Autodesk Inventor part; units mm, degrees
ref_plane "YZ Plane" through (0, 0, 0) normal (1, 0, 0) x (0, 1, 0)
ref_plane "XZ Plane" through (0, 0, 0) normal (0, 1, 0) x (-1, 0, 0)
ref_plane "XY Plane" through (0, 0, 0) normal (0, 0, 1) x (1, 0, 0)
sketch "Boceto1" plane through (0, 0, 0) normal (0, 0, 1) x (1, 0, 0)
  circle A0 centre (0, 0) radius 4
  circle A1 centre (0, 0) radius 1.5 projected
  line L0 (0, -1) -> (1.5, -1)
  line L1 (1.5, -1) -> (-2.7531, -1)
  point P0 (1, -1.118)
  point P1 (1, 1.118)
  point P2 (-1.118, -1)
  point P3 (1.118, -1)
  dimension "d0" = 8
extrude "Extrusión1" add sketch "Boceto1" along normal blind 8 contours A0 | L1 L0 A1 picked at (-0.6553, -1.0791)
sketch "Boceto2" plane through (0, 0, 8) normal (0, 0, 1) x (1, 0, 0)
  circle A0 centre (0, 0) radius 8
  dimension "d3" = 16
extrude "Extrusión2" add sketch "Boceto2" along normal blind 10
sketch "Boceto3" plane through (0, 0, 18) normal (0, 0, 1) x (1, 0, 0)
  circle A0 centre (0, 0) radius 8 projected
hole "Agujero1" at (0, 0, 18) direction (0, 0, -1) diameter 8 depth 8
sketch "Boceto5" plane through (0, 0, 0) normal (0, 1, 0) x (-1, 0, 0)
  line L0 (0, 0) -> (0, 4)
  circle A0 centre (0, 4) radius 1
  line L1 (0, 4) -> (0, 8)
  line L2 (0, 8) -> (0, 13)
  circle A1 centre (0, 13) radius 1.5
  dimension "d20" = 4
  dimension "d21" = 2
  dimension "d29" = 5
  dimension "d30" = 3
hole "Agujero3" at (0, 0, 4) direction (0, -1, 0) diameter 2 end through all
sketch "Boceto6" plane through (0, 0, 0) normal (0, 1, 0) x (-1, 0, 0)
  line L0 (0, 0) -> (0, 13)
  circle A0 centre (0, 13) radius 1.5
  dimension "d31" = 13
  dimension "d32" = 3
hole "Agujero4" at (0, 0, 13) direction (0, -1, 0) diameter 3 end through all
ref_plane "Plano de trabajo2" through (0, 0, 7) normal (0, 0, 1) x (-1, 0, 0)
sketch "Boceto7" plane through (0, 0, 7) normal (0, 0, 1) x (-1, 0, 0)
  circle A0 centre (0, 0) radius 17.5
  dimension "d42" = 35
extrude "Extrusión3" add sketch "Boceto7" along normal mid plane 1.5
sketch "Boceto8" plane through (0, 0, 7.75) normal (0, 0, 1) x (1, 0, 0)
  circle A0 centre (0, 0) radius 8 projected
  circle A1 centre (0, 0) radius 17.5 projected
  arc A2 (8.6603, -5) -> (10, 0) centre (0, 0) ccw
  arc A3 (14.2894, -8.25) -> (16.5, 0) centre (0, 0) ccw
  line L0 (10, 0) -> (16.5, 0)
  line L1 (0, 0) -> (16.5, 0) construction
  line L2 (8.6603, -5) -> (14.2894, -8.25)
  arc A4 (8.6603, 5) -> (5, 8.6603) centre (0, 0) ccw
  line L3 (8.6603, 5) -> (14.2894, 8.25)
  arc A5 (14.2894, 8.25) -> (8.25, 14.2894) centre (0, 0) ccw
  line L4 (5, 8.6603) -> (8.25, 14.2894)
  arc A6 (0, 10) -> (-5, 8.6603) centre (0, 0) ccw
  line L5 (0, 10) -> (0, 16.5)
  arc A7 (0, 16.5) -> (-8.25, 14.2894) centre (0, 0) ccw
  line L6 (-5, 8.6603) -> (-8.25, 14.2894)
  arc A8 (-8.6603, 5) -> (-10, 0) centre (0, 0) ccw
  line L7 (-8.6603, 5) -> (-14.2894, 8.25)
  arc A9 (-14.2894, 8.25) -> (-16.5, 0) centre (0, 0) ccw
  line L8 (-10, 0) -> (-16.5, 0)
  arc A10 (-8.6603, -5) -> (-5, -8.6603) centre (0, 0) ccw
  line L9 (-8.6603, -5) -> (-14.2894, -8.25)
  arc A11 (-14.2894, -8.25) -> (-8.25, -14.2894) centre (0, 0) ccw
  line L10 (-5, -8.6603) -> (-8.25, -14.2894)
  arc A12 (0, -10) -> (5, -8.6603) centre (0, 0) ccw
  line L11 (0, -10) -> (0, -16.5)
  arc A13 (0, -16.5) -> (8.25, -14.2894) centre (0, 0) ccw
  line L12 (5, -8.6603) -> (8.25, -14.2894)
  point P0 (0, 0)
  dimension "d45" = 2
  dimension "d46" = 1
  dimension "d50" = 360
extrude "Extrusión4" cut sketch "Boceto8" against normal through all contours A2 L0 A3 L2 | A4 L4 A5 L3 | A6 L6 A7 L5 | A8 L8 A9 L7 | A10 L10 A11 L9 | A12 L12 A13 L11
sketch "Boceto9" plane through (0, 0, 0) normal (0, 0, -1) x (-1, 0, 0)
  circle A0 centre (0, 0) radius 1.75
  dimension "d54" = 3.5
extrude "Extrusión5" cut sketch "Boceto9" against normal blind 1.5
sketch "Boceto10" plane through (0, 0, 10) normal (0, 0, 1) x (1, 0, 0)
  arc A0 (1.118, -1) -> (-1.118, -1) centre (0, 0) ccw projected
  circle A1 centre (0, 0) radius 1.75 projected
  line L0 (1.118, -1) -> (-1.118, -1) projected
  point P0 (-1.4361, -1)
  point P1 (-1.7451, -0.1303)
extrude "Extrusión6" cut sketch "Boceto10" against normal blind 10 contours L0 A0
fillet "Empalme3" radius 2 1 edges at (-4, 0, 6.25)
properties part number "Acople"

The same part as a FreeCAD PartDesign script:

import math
import FreeCAD as App
import Part
import Sketcher

V = App.Vector
Q = App.Units.Quantity


def edges_at(feature, points):
    """Names of the edges that pass closest to the given points."""
    edges = feature.Shape.Edges
    near = lambda p: min(range(len(edges)), key=lambda i: edges[i].distToShape(Part.Vertex(*p))[0])
    return sorted({f"Edge{near(p) + 1}" for p in points})

doc = App.newDocument("Part")
body = doc.addObject("PartDesign::Body", "Body")

# Sketch on XY plane
sketch1 = body.newObject("Sketcher::SketchObject", "Sketch")
sketch1.AttachmentSupport = (doc.getObject("XY_Plane"), [""])
sketch1.MapMode = "FlatFace"
sketch1.addGeometry([
    Part.Circle(V(0, 0, 0), V(0, 0, 1), 4),
    Part.ArcOfCircle(Part.Circle(V(0, 0, 0), V(0, 0, 1), 1.5), math.radians(-42), math.radians(222)),
    Part.LineSegment(V(1.1, -1, 0), V(-1.1, -1, 0)),
], False)
sketch1.addConstraint([
    Sketcher.Constraint("Coincident", 1, 1, 2, 1),
    Sketcher.Constraint("Coincident", 2, 2, 1, 2),
    Sketcher.Constraint("Horizontal", 2),
    Sketcher.Constraint("Coincident", 0, 3, -1, 1),
    Sketcher.Constraint("Coincident", 1, 3, -1, 1),
    Sketcher.Constraint("Diameter", 0, Q("8 mm")),
    Sketcher.Constraint("Radius", 1, Q("1.5 mm")),
    Sketcher.Constraint("DistanceY", 1, 1, -1, 1, Q("1 mm")),
])
pad1 = body.newObject("PartDesign::Pad", "Pad")
pad1.Profile = sketch1
pad1.Length = 8

# Sketch on XY plane
sketch2 = body.newObject("Sketcher::SketchObject", "Sketch001")
sketch2.AttachmentSupport = (doc.getObject("XY_Plane"), [""])
sketch2.MapMode = "FlatFace"
sketch2.AttachmentOffset = App.Placement(V(0, 0, 8), App.Rotation())
sketch2.addGeometry(Part.Circle(V(0, 0, 0), V(0, 0, 1), 8), False)
sketch2.addConstraint([
    Sketcher.Constraint("Coincident", 0, 3, -1, 1),
    Sketcher.Constraint("Diameter", 0, Q("16 mm")),
])
pad2 = body.newObject("PartDesign::Pad", "Pad001")
pad2.Profile = sketch2
pad2.Length = 10

# Sketch on XY plane
sketch3 = body.newObject("Sketcher::SketchObject", "Sketch002")
sketch3.AttachmentSupport = (doc.getObject("XY_Plane"), [""])
sketch3.MapMode = "FlatFace"
sketch3.AttachmentOffset = App.Placement(V(0, 0, 18), App.Rotation())
sketch3.addGeometry(Part.Circle(V(0, 0, 0), V(0, 0, 1), 4), False)
sketch3.addConstraint([
    Sketcher.Constraint("Coincident", 0, 3, -1, 1),
    Sketcher.Constraint("Diameter", 0, Q("8 mm")),
])
doc.recompute()
hole = body.newObject("PartDesign::Hole", "Hole")
hole.Profile = sketch3
hole.ThreadType = "None"
hole.Diameter = 8
hole.DepthType = "Dimension"
hole.Depth = 8
hole.DrillPoint = "Flat"

# Sketch on XZ plane
sketch4 = body.newObject("Sketcher::SketchObject", "Sketch003")
sketch4.AttachmentSupport = (doc.getObject("XZ_Plane"), [""])
sketch4.MapMode = "FlatFace"
sketch4.addGeometry(Part.Circle(V(0, 4, 0), V(0, 0, 1), 1), False)
sketch4.addConstraint([
    Sketcher.Constraint("PointOnObject", 0, 3, -2),
    Sketcher.Constraint("Diameter", 0, Q("2 mm")),
    Sketcher.Constraint("DistanceY", -1, 1, 0, 3, Q("4 mm")),
])
doc.recompute()
hole2 = body.newObject("PartDesign::Hole", "Hole001")
hole2.Profile = sketch4
hole2.ThreadType = "None"
hole2.Diameter = 2
hole2.DepthType = "ThroughAll"
hole2.Reversed = True

# Sketch on XZ plane
sketch5 = body.newObject("Sketcher::SketchObject", "Sketch004")
sketch5.AttachmentSupport = (doc.getObject("XZ_Plane"), [""])
sketch5.MapMode = "FlatFace"
sketch5.addGeometry(Part.Circle(V(0, 13, 0), V(0, 0, 1), 1.5), False)
sketch5.addConstraint([
    Sketcher.Constraint("PointOnObject", 0, 3, -2),
    Sketcher.Constraint("Diameter", 0, Q("3 mm")),
    Sketcher.Constraint("DistanceY", -1, 1, 0, 3, Q("13 mm")),
])
doc.recompute()
hole3 = body.newObject("PartDesign::Hole", "Hole002")
hole3.Profile = sketch5
hole3.ThreadType = "None"
hole3.Diameter = 3
hole3.DepthType = "ThroughAll"
hole3.Reversed = True

# Sketch on XY plane
sketch6 = body.newObject("Sketcher::SketchObject", "Sketch005")
sketch6.AttachmentSupport = (doc.getObject("XY_Plane"), [""])
sketch6.MapMode = "FlatFace"
sketch6.AttachmentOffset = App.Placement(V(0, 0, 7), App.Rotation())
sketch6.addGeometry(Part.Circle(V(0, 0, 0), V(0, 0, 1), 18), False)
sketch6.addConstraint([
    Sketcher.Constraint("Coincident", 0, 3, -1, 1),
    Sketcher.Constraint("Diameter", 0, Q("35 mm")),
])
pad3 = body.newObject("PartDesign::Pad", "Pad002")
pad3.Profile = sketch6
pad3.Length = 1.5
pad3.Midplane = True

# Sketch on XY plane
sketch7 = body.newObject("Sketcher::SketchObject", "Sketch006")
sketch7.AttachmentSupport = (doc.getObject("XY_Plane"), [""])
sketch7.MapMode = "FlatFace"
sketch7.AttachmentOffset = App.Placement(V(0, 0, 7.75), App.Rotation())
sketch7.addGeometry([
    Part.ArcOfCircle(Part.Circle(V(0, 0, 0), V(0, 0, 1), 10), math.radians(-30), math.radians(0)),  # 0
    Part.LineSegment(V(9, -5, 0), V(14, -8, 0)),  # 1
    Part.ArcOfCircle(Part.Circle(V(0, 0, 0), V(0, 0, 1), 16), math.radians(-30), math.radians(0)),  # 2
    Part.LineSegment(V(16, 0, 0), V(10, 0, 0)),  # 3
    Part.ArcOfCircle(Part.Circle(V(0, 0, 0), V(0, 0, 1), 10), math.radians(30), math.radians(60)),  # 4
    Part.LineSegment(V(9, 5, 0), V(14, 8, 0)),  # 5
    Part.ArcOfCircle(Part.Circle(V(0, 0, 0), V(0, 0, 1), 16), math.radians(30), math.radians(60)),  # 6
    Part.LineSegment(V(8, 14, 0), V(5, 9, 0)),  # 7
    Part.ArcOfCircle(Part.Circle(V(0, 0, 0), V(0, 0, 1), 10), math.radians(90), math.radians(120)),  # 8
    Part.LineSegment(V(0, 10, 0), V(0, 16, 0)),  # 9
    Part.ArcOfCircle(Part.Circle(V(0, 0, 0), V(0, 0, 1), 16), math.radians(90), math.radians(120)),  # 10
    Part.LineSegment(V(-8, 14, 0), V(-5, 9, 0)),  # 11
    Part.ArcOfCircle(Part.Circle(V(0, 0, 0), V(0, 0, 1), 10), math.radians(150), math.radians(180)),  # 12
    Part.LineSegment(V(-9, 5, 0), V(-14, 8, 0)),  # 13
    Part.ArcOfCircle(Part.Circle(V(0, 0, 0), V(0, 0, 1), 16), math.radians(150), math.radians(180)),  # 14
    Part.LineSegment(V(-16, 0, 0), V(-10, 0, 0)),  # 15
    Part.ArcOfCircle(Part.Circle(V(0, 0, 0), V(0, 0, 1), 10), math.radians(-150), math.radians(-120)),  # 16
    Part.LineSegment(V(-9, -5, 0), V(-14, -8, 0)),  # 17
    Part.ArcOfCircle(Part.Circle(V(0, 0, 0), V(0, 0, 1), 16), math.radians(-150), math.radians(-120)),  # 18
    Part.LineSegment(V(-8, -14, 0), V(-5, -9, 0)),  # 19
    Part.ArcOfCircle(Part.Circle(V(0, 0, 0), V(0, 0, 1), 10), math.radians(-90), math.radians(-60)),  # 20
    Part.LineSegment(V(0, -10, 0), V(0, -16, 0)),  # 21
    Part.ArcOfCircle(Part.Circle(V(0, 0, 0), V(0, 0, 1), 16), math.radians(-90), math.radians(-60)),  # 22
    Part.LineSegment(V(8, -14, 0), V(5, -9, 0)),  # 23
], False)
sketch7.addConstraint([
    Sketcher.Constraint("Coincident", 0, 1, 1, 1),
    Sketcher.Constraint("Coincident", 1, 2, 2, 1),
    Sketcher.Constraint("Coincident", 2, 2, 3, 1),
    Sketcher.Constraint("Coincident", 3, 2, 0, 2),
    Sketcher.Constraint("Coincident", 4, 1, 5, 1),
    Sketcher.Constraint("Coincident", 5, 2, 6, 1),
    Sketcher.Constraint("Coincident", 6, 2, 7, 1),
    Sketcher.Constraint("Coincident", 7, 2, 4, 2),
    Sketcher.Constraint("Coincident", 8, 1, 9, 1),
    Sketcher.Constraint("Coincident", 9, 2, 10, 1),
    Sketcher.Constraint("Coincident", 10, 2, 11, 1),
    Sketcher.Constraint("Coincident", 11, 2, 8, 2),
    Sketcher.Constraint("Coincident", 12, 1, 13, 1),
    Sketcher.Constraint("Coincident", 13, 2, 14, 1),
    Sketcher.Constraint("Coincident", 14, 2, 15, 1),
    Sketcher.Constraint("Coincident", 15, 2, 12, 2),
    Sketcher.Constraint("Coincident", 16, 1, 17, 1),
    Sketcher.Constraint("Coincident", 17, 2, 18, 1),
    Sketcher.Constraint("Coincident", 18, 2, 19, 1),
    Sketcher.Constraint("Coincident", 19, 2, 16, 2),
    Sketcher.Constraint("Coincident", 20, 1, 21, 1),
    Sketcher.Constraint("Coincident", 21, 2, 22, 1),
    Sketcher.Constraint("Coincident", 22, 2, 23, 1),
    Sketcher.Constraint("Coincident", 23, 2, 20, 2),
    Sketcher.Constraint("Horizontal", 3),
    Sketcher.Constraint("Vertical", 9),
    Sketcher.Constraint("Horizontal", 15),
    Sketcher.Constraint("Vertical", 21),
    Sketcher.Constraint("Coincident", 0, 3, -1, 1),
    Sketcher.Constraint("Coincident", 2, 3, -1, 1),
    Sketcher.Constraint("Coincident", 4, 3, -1, 1),
    Sketcher.Constraint("Coincident", 6, 3, -1, 1),
    Sketcher.Constraint("Coincident", 8, 3, -1, 1),
    Sketcher.Constraint("Coincident", 10, 3, -1, 1),
    Sketcher.Constraint("Coincident", 12, 3, -1, 1),
    Sketcher.Constraint("Coincident", 14, 3, -1, 1),
    Sketcher.Constraint("Coincident", 16, 3, -1, 1),
    Sketcher.Constraint("Coincident", 18, 3, -1, 1),
    Sketcher.Constraint("Coincident", 20, 3, -1, 1),
    Sketcher.Constraint("Coincident", 22, 3, -1, 1),
    Sketcher.Constraint("Equal", 0, 4),
    Sketcher.Constraint("Equal", 2, 6),
    Sketcher.Constraint("Equal", 4, 8),
    Sketcher.Constraint("Equal", 6, 10),
    Sketcher.Constraint("Equal", 8, 12),
    Sketcher.Constraint("Equal", 10, 14),
    Sketcher.Constraint("Equal", 12, 16),
    Sketcher.Constraint("Equal", 14, 18),
    Sketcher.Constraint("Equal", 16, 20),
    Sketcher.Constraint("Equal", 18, 22),
    Sketcher.Constraint("PointOnObject", 2, 2, -1),
    Sketcher.Constraint("PointOnObject", 8, 1, -2),
    Sketcher.Constraint("PointOnObject", 14, 2, -1),
    Sketcher.Constraint("PointOnObject", 20, 1, -2),
    Sketcher.Constraint("Perpendicular", 1, 7),
    Sketcher.Constraint("Perpendicular", 5, 11),
    Sketcher.Constraint("Perpendicular", 7, 13),
    Sketcher.Constraint("Perpendicular", 11, 17),
    Sketcher.Constraint("Perpendicular", 13, 19),
    Sketcher.Constraint("Perpendicular", 17, 23),
    Sketcher.Constraint("Horizontal", 6, 2, 10, 2),
    Sketcher.Constraint("Horizontal", 7, 2, 11, 2),
    Sketcher.Constraint("Horizontal", 4, 1, 12, 1),
    Sketcher.Constraint("Horizontal", 0, 1, 16, 1),
    Sketcher.Constraint("Horizontal", 18, 2, 22, 2),
    Sketcher.Constraint("Vertical", 0, 1, 4, 1),
    Sketcher.Constraint("Vertical", 10, 2, 18, 2),
    Sketcher.Constraint("Radius", 0, Q("10 mm")),
    Sketcher.Constraint("Radius", 2, Q("16.5 mm")),
    Sketcher.Constraint("Angle", 1, Q("-30.0003 deg")),
    Sketcher.Constraint("DistanceY", 0, 1, -1, 1, Q("5 mm")),
    Sketcher.Constraint("DistanceX", -1, 1, 7, 2, Q("5 mm")),
])
pocket1 = body.newObject("PartDesign::Pocket", "Pocket")
pocket1.Profile = sketch7
pocket1.Type = "ThroughAll"

# Sketch on XY plane
sketch8 = body.newObject("Sketcher::SketchObject", "Sketch007")
sketch8.AttachmentSupport = (doc.getObject("XY_Plane"), [""])
sketch8.MapMode = "FlatFace"
sketch8.addGeometry(Part.Circle(V(0, 0, 0), V(0, 0, 1), 1.8), False)
sketch8.addConstraint([
    Sketcher.Constraint("Coincident", 0, 3, -1, 1),
    Sketcher.Constraint("Diameter", 0, Q("3.5 mm")),
])
pocket2 = body.newObject("PartDesign::Pocket", "Pocket001")
pocket2.Profile = sketch8
pocket2.Length = 1.5
pocket2.Reversed = True

# Sketch on XY plane
sketch9 = body.newObject("Sketcher::SketchObject", "Sketch008")
sketch9.AttachmentSupport = (doc.getObject("XY_Plane"), [""])
sketch9.MapMode = "FlatFace"
sketch9.AttachmentOffset = App.Placement(V(0, 0, 10), App.Rotation())
sketch9.addGeometry([
    Part.LineSegment(V(-1.1, -1, 0), V(1.1, -1, 0)),
    Part.ArcOfCircle(Part.Circle(V(0, 0, 0), V(0, 0, 1), 1.5), math.radians(-42), math.radians(222)),
], False)
sketch9.addConstraint([
    Sketcher.Constraint("Coincident", 0, 1, 1, 2),
    Sketcher.Constraint("Coincident", 1, 1, 0, 2),
    Sketcher.Constraint("Horizontal", 0),
    Sketcher.Constraint("Coincident", 1, 3, -1, 1),
    Sketcher.Constraint("Radius", 1, Q("1.5 mm")),
    Sketcher.Constraint("DistanceY", 0, 1, -1, 1, Q("1 mm")),
])
pocket3 = body.newObject("PartDesign::Pocket", "Pocket002")
pocket3.Profile = sketch9
pocket3.Length = 10
doc.recompute()

fillet = body.newObject("PartDesign::Fillet", "Fillet")
fillet.Base = (pocket3, edges_at(pocket3, [(-4, 0, 6.25)]))
fillet.Radius = 2

doc.recompute()
